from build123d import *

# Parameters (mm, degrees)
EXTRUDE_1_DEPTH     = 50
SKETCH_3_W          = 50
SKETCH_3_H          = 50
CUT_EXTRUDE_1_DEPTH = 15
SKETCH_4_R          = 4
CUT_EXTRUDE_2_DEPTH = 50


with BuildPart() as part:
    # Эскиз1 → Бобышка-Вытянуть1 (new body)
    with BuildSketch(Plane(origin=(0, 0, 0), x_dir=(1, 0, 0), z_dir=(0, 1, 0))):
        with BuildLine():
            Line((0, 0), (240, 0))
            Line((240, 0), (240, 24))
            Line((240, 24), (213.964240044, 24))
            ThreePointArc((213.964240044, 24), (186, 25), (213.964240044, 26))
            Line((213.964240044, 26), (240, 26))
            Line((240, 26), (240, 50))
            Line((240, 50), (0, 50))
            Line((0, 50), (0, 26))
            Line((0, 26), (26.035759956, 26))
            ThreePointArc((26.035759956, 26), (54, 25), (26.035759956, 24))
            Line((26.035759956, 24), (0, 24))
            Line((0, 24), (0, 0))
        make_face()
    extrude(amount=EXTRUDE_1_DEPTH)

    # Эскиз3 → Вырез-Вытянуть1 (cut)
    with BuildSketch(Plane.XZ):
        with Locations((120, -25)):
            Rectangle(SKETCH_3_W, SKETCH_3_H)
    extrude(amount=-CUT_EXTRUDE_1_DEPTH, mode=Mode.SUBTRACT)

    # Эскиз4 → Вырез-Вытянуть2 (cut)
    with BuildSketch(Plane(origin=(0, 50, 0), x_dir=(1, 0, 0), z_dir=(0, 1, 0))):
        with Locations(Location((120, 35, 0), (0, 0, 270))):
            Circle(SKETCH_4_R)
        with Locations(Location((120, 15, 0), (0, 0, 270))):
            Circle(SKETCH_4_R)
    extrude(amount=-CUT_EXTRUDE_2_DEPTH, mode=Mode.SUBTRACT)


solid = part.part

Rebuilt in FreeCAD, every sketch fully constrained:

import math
import FreeCAD as App
import Part
import Sketcher


def add_polygon(sketch, points):
    """Adds a closed chain of lines whose ends are joined by coincident constraints."""
    first, n = sketch.GeometryCount, len(points)
    for a, b in zip(points, points[1:] + points[:1]):
        sketch.addGeometry(Part.LineSegment(App.Vector(*a, 0), App.Vector(*b, 0)), False)
    for i in range(n):
        sketch.addConstraint(Sketcher.Constraint("Coincident", first + i, 2, first + (i + 1) % n, 1))

doc = App.newDocument("Part")
params = doc.addObject("Spreadsheet::Sheet", "Params")
for row, (alias, value) in enumerate([
    ("sketch1_radius", "14 mm"),
    ("sketch1_width", "240 mm"),
    ("sketch1_height", "24 mm"),
    ("pad1_length", "50 mm"),
    ("sketch2_width", "50 mm"),
    ("pocket1_length", "15 mm"),
    ("sketch3_diameter", "8 mm"),
    ("pocket2_length", "50 mm"),
], start=1):
    params.set(f"A{row}", alias)
    params.set(f"B{row}", "=" + value)
    params.setAlias(f"B{row}", alias)

body = doc.addObject("PartDesign::Body", "Body")

# Sketch on XZ plane
sketch1 = body.newObject("Sketcher::SketchObject", "Sketch")
sketch1.AttachmentSupport = (doc.getObject("XZ_Plane"), [""])
sketch1.MapMode = "FlatFace"
sketch1.addGeometry([
    Part.LineSegment(App.Vector(0, 0, 0), App.Vector(240, 0, 0)),  # 0
    Part.LineSegment(App.Vector(240, 0, 0), App.Vector(240, -24, 0)),  # 1
    Part.LineSegment(App.Vector(240, -24, 0), App.Vector(214, -24, 0)),  # 2
    Part.ArcOfCircle(Part.Circle(App.Vector(200, -25, 0), App.Vector(0, 0, 1), 14), math.radians(4), math.radians(356)),  # 3
    Part.LineSegment(App.Vector(214, -26, 0), App.Vector(240, -26, 0)),  # 4
    Part.LineSegment(App.Vector(240, -26, 0), App.Vector(240, -50, 0)),  # 5
    Part.LineSegment(App.Vector(240, -50, 0), App.Vector(0, -50, 0)),  # 6
    Part.LineSegment(App.Vector(0, -50, 0), App.Vector(0, -26, 0)),  # 7
    Part.LineSegment(App.Vector(0, -26, 0), App.Vector(26, -26, 0)),  # 8
    Part.ArcOfCircle(Part.Circle(App.Vector(40, -25, 0), App.Vector(0, 0, 1), 14), math.radians(-176), math.radians(176)),  # 9
    Part.LineSegment(App.Vector(26, -24, 0), App.Vector(0, -24, 0)),  # 10
    Part.LineSegment(App.Vector(0, -24, 0), App.Vector(0, 0, 0)),  # 11
], False)
sketch1.addConstraint([
    Sketcher.Constraint("Coincident", 0, 2, 1, 1),
    Sketcher.Constraint("Coincident", 1, 2, 2, 1),
    Sketcher.Constraint("Coincident", 2, 2, 3, 1),
    Sketcher.Constraint("Coincident", 3, 2, 4, 1),
    Sketcher.Constraint("Coincident", 4, 2, 5, 1),
    Sketcher.Constraint("Coincident", 5, 2, 6, 1),
    Sketcher.Constraint("Coincident", 6, 2, 7, 1),
    Sketcher.Constraint("Coincident", 7, 2, 8, 1),
    Sketcher.Constraint("Coincident", 8, 2, 9, 1),
    Sketcher.Constraint("Coincident", 9, 2, 10, 1),
    Sketcher.Constraint("Coincident", 10, 2, 11, 1),
    Sketcher.Constraint("Coincident", 11, 2, 0, 1),
    Sketcher.Constraint("Horizontal", 0),
    Sketcher.Constraint("Vertical", 1),
    Sketcher.Constraint("Horizontal", 2),
    Sketcher.Constraint("Horizontal", 4),
    Sketcher.Constraint("Vertical", 5),
    Sketcher.Constraint("Horizontal", 6),
    Sketcher.Constraint("Vertical", 7),
    Sketcher.Constraint("Horizontal", 8),
    Sketcher.Constraint("Horizontal", 10),
    Sketcher.Constraint("Vertical", 11),
    Sketcher.Constraint("Coincident", 11, 2, -1, 1),
    Sketcher.Constraint("Equal", 3, 9),
    Sketcher.Constraint("PointOnObject", 6, 2, -2),
    Sketcher.Constraint("Horizontal", 3, 3, 9, 3),
    Sketcher.Constraint("Horizontal", 4, 2, 7, 2),
    Sketcher.Constraint("Horizontal", 2, 2, 9, 2),
    Sketcher.Constraint("Vertical", 2, 2, 3, 2),
    Sketcher.Constraint("Vertical", 1, 2, 4, 2),
    Sketcher.Constraint("Equal", 4, 8),
    Sketcher.Constraint("Equal", 1, 5),
    Sketcher.Constraint("Radius", 3, 14.0),
    Sketcher.Constraint("DistanceX", 0, 1, 0, 2, 240.0),
    Sketcher.Constraint("DistanceY", 1, 2, 1, 1, 24.0),
    Sketcher.Constraint("DistanceX", -1, 1, 3, 3, 200.0),
    Sketcher.Constraint("DistanceY", 3, 3, -1, 1, 25.0),
])
sketch1.setExpression("Constraints[32]", "Params.sketch1_radius")
sketch1.setExpression("Constraints[33]", "Params.sketch1_width")
sketch1.setExpression("Constraints[34]", "Params.sketch1_height")
pad1 = body.newObject("PartDesign::Pad", "Pad")
pad1.Profile = sketch1
pad1.setExpression("Length", "Params.pad1_length")
pad1.Reversed = True

# Sketch on XZ plane
sketch2 = body.newObject("Sketcher::SketchObject", "Sketch001")
sketch2.AttachmentSupport = (doc.getObject("XZ_Plane"), [""])
sketch2.MapMode = "FlatFace"
add_polygon(sketch2, [(95, 0), (95, -50), (145, -50), (145, 0)])  # lines 0-3
sketch2.addConstraint([
    Sketcher.Constraint("Vertical", 0),
    Sketcher.Constraint("Horizontal", 1),
    Sketcher.Constraint("Vertical", 2),
    Sketcher.Constraint("Horizontal", 3),
    Sketcher.Constraint("PointOnObject", 2, 2, -1),
    Sketcher.Constraint("Equal", 3, 0),
    Sketcher.Constraint("DistanceX", 1, 1, 1, 2, 50.0),
    Sketcher.Constraint("DistanceX", -1, 1, 0, 2, 95.0),
])
sketch2.setExpression("Constraints[10]", "Params.sketch2_width")
pocket1 = body.newObject("PartDesign::Pocket", "Pocket")
pocket1.Profile = sketch2
pocket1.setExpression("Length", "Params.pocket1_length")

# Sketch on XZ plane
sketch3 = body.newObject("Sketcher::SketchObject", "Sketch002")
sketch3.AttachmentSupport = (doc.getObject("XZ_Plane"), [""])
sketch3.MapMode = "FlatFace"
sketch3.AttachmentOffset = App.Placement(App.Vector(0, 0, -50), App.Rotation())
sketch3.addGeometry([
    Part.Circle(App.Vector(120, -35, 0), App.Vector(0, 0, 1), 4),
    Part.Circle(App.Vector(120, -15, 0), App.Vector(0, 0, 1), 4),
], False)
sketch3.addConstraint([
    Sketcher.Constraint("Equal", 0, 1),
    Sketcher.Constraint("Vertical", 0, 3, 1, 3),
    Sketcher.Constraint("Diameter", 0, 8.0),
    Sketcher.Constraint("DistanceX", -1, 1, 0, 3, 120.0),
    Sketcher.Constraint("DistanceY", 0, 3, -1, 1, 35.0),
    Sketcher.Constraint("DistanceY", 1, 3, -1, 1, 15.0),
])
sketch3.setExpression("Constraints[2]", "Params.sketch3_diameter")
pocket2 = body.newObject("PartDesign::Pocket", "Pocket001")
pocket2.Profile = sketch3
pocket2.setExpression("Length", "Params.pocket2_length")
pocket2.Reversed = True

doc.recompute()
